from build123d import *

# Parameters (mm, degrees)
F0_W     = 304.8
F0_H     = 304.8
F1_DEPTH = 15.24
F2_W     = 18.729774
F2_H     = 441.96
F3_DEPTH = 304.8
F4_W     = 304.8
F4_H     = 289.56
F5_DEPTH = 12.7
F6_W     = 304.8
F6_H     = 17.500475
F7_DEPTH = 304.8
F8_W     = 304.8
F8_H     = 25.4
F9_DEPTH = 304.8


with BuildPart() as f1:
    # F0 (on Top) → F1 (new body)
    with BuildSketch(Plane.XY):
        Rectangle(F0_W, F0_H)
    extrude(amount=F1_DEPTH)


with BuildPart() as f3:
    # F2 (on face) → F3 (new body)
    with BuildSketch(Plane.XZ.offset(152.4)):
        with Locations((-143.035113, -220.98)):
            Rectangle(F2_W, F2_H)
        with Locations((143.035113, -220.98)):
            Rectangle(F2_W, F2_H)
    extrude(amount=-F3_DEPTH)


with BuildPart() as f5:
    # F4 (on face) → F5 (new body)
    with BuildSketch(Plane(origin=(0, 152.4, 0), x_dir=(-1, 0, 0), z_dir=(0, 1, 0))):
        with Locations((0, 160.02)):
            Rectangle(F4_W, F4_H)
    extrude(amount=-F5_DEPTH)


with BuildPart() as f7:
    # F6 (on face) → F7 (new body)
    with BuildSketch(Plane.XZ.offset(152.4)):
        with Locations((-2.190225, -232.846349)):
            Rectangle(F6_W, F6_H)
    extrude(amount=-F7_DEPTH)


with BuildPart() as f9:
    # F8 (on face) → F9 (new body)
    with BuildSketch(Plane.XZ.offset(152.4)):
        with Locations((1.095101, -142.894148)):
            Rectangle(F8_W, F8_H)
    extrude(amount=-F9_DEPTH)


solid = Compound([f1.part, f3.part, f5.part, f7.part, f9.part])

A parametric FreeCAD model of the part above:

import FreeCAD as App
import Part
import Sketcher
from FreeCAD import Vector
Q = App.Units.Quantity


def add_polygon(sketch, points):
    """Adds a closed chain of lines whose ends are joined by coincident constraints."""
    first, n = sketch.GeometryCount, len(points)
    for a, b in zip(points, points[1:] + points[:1]):
        sketch.addGeometry(Part.LineSegment(App.Vector(*a, 0), App.Vector(*b, 0)), False)
    for i in range(n):
        sketch.addConstraint(Sketcher.Constraint("Coincident", first + i, 2, first + (i + 1) % n, 1))

doc = App.newDocument("Part")
body = doc.addObject("PartDesign::Body", "Body")

sketch1 = body.newObject("Sketcher::SketchObject", "Sketch")
sketch1.AttachmentSupport = (doc.getObject("XY_Plane"), [""])
sketch1.MapMode = "FlatFace"
add_polygon(sketch1, [(-152, 152), (-152, -152), (152, -152), (152, 152)])
sketch1.addConstraint(Sketcher.Constraint("Vertical", 0))
sketch1.addConstraint(Sketcher.Constraint("Horizontal", 1))
sketch1.addConstraint(Sketcher.Constraint("Vertical", 2))
sketch1.addConstraint(Sketcher.Constraint("Horizontal", 3))
sketch1.addConstraint(Sketcher.Constraint("Symmetric", 0, 2, 2, 2, -1, 1))
sketch1.addConstraint(Sketcher.Constraint("Equal", 3, 0))
sketch1.addConstraint(Sketcher.Constraint("DistanceX", 1, 1, 1, 2, Q("12 in")))
pad1 = body.newObject("PartDesign::Pad", "Pad")
pad1.Profile = sketch1
pad1.Length = Q("0.6 in")
body2 = doc.addObject("PartDesign::Body", "Body001")
body2.AllowCompound = True

sketch2 = body2.newObject("Sketcher::SketchObject", "Sketch001")
sketch2.AttachmentSupport = (doc.getObject("XZ_Plane001"), [""])
sketch2.MapMode = "FlatFace"
sketch2.AttachmentOffset = App.Placement(Vector(0, 0, 6 * 25.4), App.Rotation())
add_polygon(sketch2, [(-152, 0), (-152, -442), (-134, -442), (-134, 0)])
add_polygon(sketch2, [(134, 0), (134, -442), (152, -442), (152, 0)])
sketch2.addConstraint(Sketcher.Constraint("Vertical", 0))
sketch2.addConstraint(Sketcher.Constraint("Horizontal", 1))
sketch2.addConstraint(Sketcher.Constraint("Vertical", 2))
sketch2.addConstraint(Sketcher.Constraint("Horizontal", 3))
sketch2.addConstraint(Sketcher.Constraint("Vertical", 4))
sketch2.addConstraint(Sketcher.Constraint("Horizontal", 5))
sketch2.addConstraint(Sketcher.Constraint("Vertical", 6))
sketch2.addConstraint(Sketcher.Constraint("Horizontal", 7))
sketch2.addConstraint(Sketcher.Constraint("Symmetric", 3, 2, 6, 2, -1, 1))
sketch2.addConstraint(Sketcher.Constraint("Symmetric", 1, 2, 4, 2, -2))
sketch2.addConstraint(Sketcher.Constraint("PointOnObject", 2, 2, -1))
sketch2.addConstraint(Sketcher.Constraint("DistanceY", 0, 2, 0, 1, Q("17.4 in")))
sketch2.addConstraint(Sketcher.Constraint("DistanceX", 0, 2, -1, 1, Q("6 in")))
sketch2.addConstraint(Sketcher.Constraint("DistanceX", 1, 1, 1, 2, Q("18.729774 mm")))
pad2 = body2.newObject("PartDesign::Pad", "Pad001")
pad2.Profile = sketch2
pad2.Length = Q("12 in")
pad2.Reversed = True
body3 = doc.addObject("PartDesign::Body", "Body002")

sketch3 = body3.newObject("Sketcher::SketchObject", "Sketch002")
sketch3.AttachmentSupport = (doc.getObject("XZ_Plane002"), [""])
sketch3.MapMode = "FlatFace"
sketch3.AttachmentOffset = App.Placement(Vector(0, 0, -6 * 25.4), App.Rotation())
add_polygon(sketch3, [(152, 305), (152, 15), (-152, 15), (-152, 305)])
sketch3.addConstraint(Sketcher.Constraint("Vertical", 0))
sketch3.addConstraint(Sketcher.Constraint("Horizontal", 1))
sketch3.addConstraint(Sketcher.Constraint("Vertical", 2))
sketch3.addConstraint(Sketcher.Constraint("Horizontal", 3))
sketch3.addConstraint(Sketcher.Constraint("DistanceX", 1, 2, 1, 1, Q("12 in")))
sketch3.addConstraint(Sketcher.Constraint("DistanceY", 0, 2, 0, 1, Q("11.4 in")))
sketch3.addConstraint(Sketcher.Constraint("DistanceX", -1, 1, 0, 2, Q("6 in")))
sketch3.addConstraint(Sketcher.Constraint("DistanceY", -1, 1, 2, 2, Q("12 in")))
pad3 = body3.newObject("PartDesign::Pad", "Pad002")
pad3.Profile = sketch3
pad3.Length = Q("0.5 in")
body4 = doc.addObject("PartDesign::Body", "Body003")

sketch4 = body4.newObject("Sketcher::SketchObject", "Sketch003")
sketch4.AttachmentSupport = (doc.getObject("XZ_Plane003"), [""])
sketch4.MapMode = "FlatFace"
sketch4.AttachmentOffset = App.Placement(Vector(0, 0, 6 * 25.4), App.Rotation())
add_polygon(sketch4, [(-155, -224), (-155, -242), (150, -242), (150, -224)])
sketch4.addConstraint(Sketcher.Constraint("Vertical", 0))
sketch4.addConstraint(Sketcher.Constraint("Horizontal", 1))
sketch4.addConstraint(Sketcher.Constraint("Vertical", 2))
sketch4.addConstraint(Sketcher.Constraint("Horizontal", 3))
sketch4.addConstraint(Sketcher.Constraint("DistanceX", 1, 1, 1, 2, Q("12 in")))
sketch4.addConstraint(Sketcher.Constraint("DistanceY", 0, 2, 0, 1, Q("17.500475 mm")))
sketch4.addConstraint(Sketcher.Constraint("DistanceY", 2, 2, -1, 1, Q("224.096112 mm")))
sketch4.addConstraint(Sketcher.Constraint("DistanceX", 0, 2, -1, 1, Q("154.590225 mm")))
pad4 = body4.newObject("PartDesign::Pad", "Pad003")
pad4.Profile = sketch4
pad4.Length = Q("12 in")
pad4.Reversed = True
body5 = doc.addObject("PartDesign::Body", "Body004")

sketch5 = body5.newObject("Sketcher::SketchObject", "Sketch004")
sketch5.AttachmentSupport = (doc.getObject("XZ_Plane004"), [""])
sketch5.MapMode = "FlatFace"
sketch5.AttachmentOffset = App.Placement(Vector(0, 0, 6 * 25.4), App.Rotation())
add_polygon(sketch5, [(-151, -130), (-151, -156), (153, -156), (153, -130)])
sketch5.addConstraint(Sketcher.Constraint("Vertical", 0))
sketch5.addConstraint(Sketcher.Constraint("Horizontal", 1))
sketch5.addConstraint(Sketcher.Constraint("Vertical", 2))
sketch5.addConstraint(Sketcher.Constraint("Horizontal", 3))
sketch5.addConstraint(Sketcher.Constraint("DistanceX", 1, 1, 1, 2, Q("12 in")))
sketch5.addConstraint(Sketcher.Constraint("DistanceY", 0, 2, 0, 1, Q("1 in")))
sketch5.addConstraint(Sketcher.Constraint("DistanceX", 0, 2, -1, 1, Q("151.304899 mm")))
sketch5.addConstraint(Sketcher.Constraint("DistanceY", 2, 2, -1, 1, Q("130.194148 mm")))
pad5 = body5.newObject("PartDesign::Pad", "Pad004")
pad5.Profile = sketch5
pad5.Length = Q("12 in")
pad5.Reversed = True

doc.recompute()
